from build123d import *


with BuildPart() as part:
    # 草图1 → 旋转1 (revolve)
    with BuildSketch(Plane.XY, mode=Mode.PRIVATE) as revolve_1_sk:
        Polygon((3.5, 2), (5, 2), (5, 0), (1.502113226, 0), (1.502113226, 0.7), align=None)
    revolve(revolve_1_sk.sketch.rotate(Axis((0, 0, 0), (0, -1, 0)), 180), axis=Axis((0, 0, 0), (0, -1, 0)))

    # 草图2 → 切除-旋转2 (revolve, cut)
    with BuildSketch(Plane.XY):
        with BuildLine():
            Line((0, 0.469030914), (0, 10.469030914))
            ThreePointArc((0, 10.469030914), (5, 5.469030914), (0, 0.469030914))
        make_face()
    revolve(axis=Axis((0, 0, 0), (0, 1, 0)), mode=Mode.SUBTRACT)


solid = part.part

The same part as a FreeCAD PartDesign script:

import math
import FreeCAD as App
import Part
import Sketcher
Q = App.Units.Quantity


def add_polygon(sketch, points):
    """Adds a closed chain of lines whose ends are joined by coincident constraints."""
    first, n = sketch.GeometryCount, len(points)
    for a, b in zip(points, points[1:] + points[:1]):
        sketch.addGeometry(Part.LineSegment(App.Vector(*a, 0), App.Vector(*b, 0)), False)
    for i in range(n):
        sketch.addConstraint(Sketcher.Constraint("Coincident", first + i, 2, first + (i + 1) % n, 1))

doc = App.newDocument("Part")
body = doc.addObject("PartDesign::Body", "Body")

sketch1 = body.newObject("Sketcher::SketchObject", "Sketch")
sketch1.AttachmentSupport = (doc.getObject("XY_Plane"), [""])
sketch1.MapMode = "FlatFace"
add_polygon(sketch1, [(5, 2), (3.5, 2), (1.5, 0.7), (1.5, 0), (5, 0)])
sketch1.addConstraint(Sketcher.Constraint("Horizontal", 0))
sketch1.addConstraint(Sketcher.Constraint("Vertical", 2))
sketch1.addConstraint(Sketcher.Constraint("Horizontal", 3))
sketch1.addConstraint(Sketcher.Constraint("Vertical", 4))
sketch1.addConstraint(Sketcher.Constraint("PointOnObject", 2, 2, -1))
sketch1.addConstraint(Sketcher.Constraint("DistanceY", 4, 1, 4, 2, Q("2 mm")))
sketch1.addConstraint(Sketcher.Constraint("DistanceX", 0, 2, 0, 1, Q("1.5 mm")))
sketch1.addConstraint(Sketcher.Constraint("DistanceY", 2, 2, 2, 1, Q("0.7 mm")))
sketch1.addConstraint(Sketcher.Constraint("DistanceX", -1, 1, 3, 2, Q("5 mm")))
sketch1.addConstraint(Sketcher.Constraint("Distance", 1, Q("2.383601 mm")))
revolution = body.newObject("PartDesign::Revolution", "Revolution")
revolution.Profile = sketch1
revolution.ReferenceAxis = (sketch1, ["V_Axis"])
revolution.Angle = 360

sketch2 = body.newObject("Sketcher::SketchObject", "Sketch001")
sketch2.AttachmentSupport = (doc.getObject("XY_Plane"), [""])
sketch2.MapMode = "FlatFace"
sketch2.addGeometry(Part.LineSegment(App.Vector(0, 10, 0), App.Vector(0, 0, 0)), False)
sketch2.addGeometry(Part.ArcOfCircle(Part.Circle(App.Vector(0, 5, 0), App.Vector(0, 0, 1), 5), math.radians(-90), math.radians(90)), False)
sketch2.addConstraint(Sketcher.Constraint("Coincident", 0, 1, 1, 2))
sketch2.addConstraint(Sketcher.Constraint("Coincident", 1, 1, 0, 2))
sketch2.addConstraint(Sketcher.Constraint("Vertical", 0))
sketch2.addConstraint(Sketcher.Constraint("PointOnObject", 1, 3, -2))
sketch2.addConstraint(Sketcher.Constraint("PointOnObject", 0, 1, -2))
sketch2.addConstraint(Sketcher.Constraint("Radius", 1, Q("5 mm")))
sketch2.addConstraint(Sketcher.Constraint("DistanceY", -1, 1, 1, 3, Q("5.469031 mm")))
groove = body.newObject("PartDesign::Groove", "Groove")
groove.Profile = sketch2
groove.ReferenceAxis = (sketch2, ["V_Axis"])
groove.Angle = 360

doc.recompute()
